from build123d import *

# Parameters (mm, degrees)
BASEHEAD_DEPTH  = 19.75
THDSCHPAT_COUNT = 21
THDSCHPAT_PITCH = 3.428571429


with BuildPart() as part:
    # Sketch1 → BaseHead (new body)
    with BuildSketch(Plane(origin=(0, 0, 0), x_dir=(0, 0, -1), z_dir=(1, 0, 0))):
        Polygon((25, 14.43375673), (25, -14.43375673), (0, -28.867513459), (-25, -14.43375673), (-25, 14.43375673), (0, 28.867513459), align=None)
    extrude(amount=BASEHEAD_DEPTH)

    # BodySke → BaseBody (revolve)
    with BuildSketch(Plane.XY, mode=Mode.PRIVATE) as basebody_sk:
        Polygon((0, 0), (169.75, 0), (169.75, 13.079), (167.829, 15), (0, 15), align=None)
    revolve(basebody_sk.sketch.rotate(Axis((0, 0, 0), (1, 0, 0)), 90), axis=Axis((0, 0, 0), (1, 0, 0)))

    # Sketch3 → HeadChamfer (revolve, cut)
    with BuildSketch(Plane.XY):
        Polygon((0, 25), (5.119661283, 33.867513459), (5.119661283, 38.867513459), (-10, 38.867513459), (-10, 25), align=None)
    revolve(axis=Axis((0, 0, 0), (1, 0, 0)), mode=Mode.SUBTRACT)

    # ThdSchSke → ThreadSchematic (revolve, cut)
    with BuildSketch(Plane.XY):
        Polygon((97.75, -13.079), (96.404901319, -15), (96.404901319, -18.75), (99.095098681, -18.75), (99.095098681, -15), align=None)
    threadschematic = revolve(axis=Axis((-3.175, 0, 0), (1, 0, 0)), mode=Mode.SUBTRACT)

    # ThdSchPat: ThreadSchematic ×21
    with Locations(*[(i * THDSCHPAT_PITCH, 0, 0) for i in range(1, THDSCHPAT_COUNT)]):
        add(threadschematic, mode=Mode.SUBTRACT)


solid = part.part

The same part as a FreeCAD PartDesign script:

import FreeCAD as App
import Part
import Sketcher
Q = App.Units.Quantity


def add_polygon(sketch, points):
    """Adds a closed chain of lines whose ends are joined by coincident constraints."""
    first, n = sketch.GeometryCount, len(points)
    for a, b in zip(points, points[1:] + points[:1]):
        sketch.addGeometry(Part.LineSegment(App.Vector(*a, 0), App.Vector(*b, 0)), False)
    for i in range(n):
        sketch.addConstraint(Sketcher.Constraint("Coincident", first + i, 2, first + (i + 1) % n, 1))

doc = App.newDocument("Part")
params = doc.addObject("Spreadsheet::Sheet", "Params")
for row, (alias, value) in enumerate([
    ("pad1_length", "19.75 mm"),
    ("sketch2_height", "15 mm"),
    ("sketch2_width", "169.75 mm"),
    ("revolution_angle", "360 deg"),
    ("sketch3_width", "10 mm"),
    ("sketch3_height", "5 mm"),
    ("groove_angle", "360 deg"),
    ("sketch4_height", "3.75 mm"),
    ("groove2_angle", "360 deg"),
    ("linearpattern_pitch", "3.428571 mm"),
], start=1):
    params.set(f"A{row}", alias)
    params.set(f"B{row}", "=" + value)
    params.setAlias(f"B{row}", alias)

body = doc.addObject("PartDesign::Body", "Body")

sketch1 = doc.addObject("Sketcher::SketchObject", "Sketch")
body.addObject(sketch1)
sketch1.AttachmentSupport = (doc.YZ_Plane, [""])
sketch1.MapMode = "FlatFace"
add_polygon(sketch1, [(-14.433757, -25), (14.433757, -25), (28.867513, 0), (14.433757, 25), (-14.433757, 25), (-28.867513, 0)])
sketch1.addConstraint([
    Sketcher.Constraint("Horizontal", 0),
    Sketcher.Constraint("Horizontal", 3),
    Sketcher.Constraint("Symmetric", 0, 2, 3, 2, -1, 1),
    Sketcher.Constraint("Symmetric", 1, 2, 4, 2, -1, 1),
    Sketcher.Constraint("PointOnObject", 1, 2, -1),
    Sketcher.Constraint("Parallel", 2, 5),
    Sketcher.Constraint("Vertical", 0, 2, 2, 2),
    Sketcher.Constraint("Angle", 1, Q("60 deg")),
    Sketcher.Constraint("DistanceY", 0, 2, -1, 1, Q("25 mm")),
    Sketcher.Constraint("DistanceX", 0, 1, 0, 2, Q("28.867513 mm")),
])
pad1 = doc.addObject("PartDesign::Pad", "Pad")
body.addObject(pad1)
pad1.Profile = sketch1
pad1.setExpression("Length", "Params.pad1_length")

sketch2 = doc.addObject("Sketcher::SketchObject", "Sketch001")
body.addObject(sketch2)
sketch2.AttachmentSupport = (doc.XY_Plane, [""])
sketch2.MapMode = "FlatFace"
add_polygon(sketch2, [(0, 0), (169.75, 0), (169.75, 13.079), (167.829, 15), (0, 15)])
sketch2.addConstraint([
    Sketcher.Constraint("Horizontal", 0),
    Sketcher.Constraint("Vertical", 1),
    Sketcher.Constraint("Horizontal", 3),
    Sketcher.Constraint("Vertical", 4),
    Sketcher.Constraint("Coincident", 4, 2, -1, 1),
    Sketcher.Constraint("DistanceY", 4, 2, 4, 1, Q("15 mm")),
    Sketcher.Constraint("Angle", 2, Q("135 deg")),
    Sketcher.Constraint("DistanceX", 0, 1, 0, 2, Q("169.75 mm")),
    Sketcher.Constraint("DistanceX", 3, 2, 3, 1, Q("167.829 mm")),
])
sketch2.setExpression("Constraints[10]", "Params.sketch2_height")
sketch2.setExpression("Constraints[12]", "Params.sketch2_width")
revolution = doc.addObject("PartDesign::Revolution", "Revolution")
body.addObject(revolution)
revolution.Profile = sketch2
revolution.ReferenceAxis = (sketch2, ["H_Axis"])
revolution.setExpression("Angle", "Params.revolution_angle")

sketch3 = doc.addObject("Sketcher::SketchObject", "Sketch002")
body.addObject(sketch3)
sketch3.AttachmentSupport = (doc.XY_Plane, [""])
sketch3.MapMode = "FlatFace"
add_polygon(sketch3, [(0, 25), (5.119661, 33.867513), (5.119661, 38.867513), (-10, 38.867513), (-10, 25)])
sketch3.addConstraint([
    Sketcher.Constraint("Vertical", 1),
    Sketcher.Constraint("Horizontal", 2),
    Sketcher.Constraint("Vertical", 3),
    Sketcher.Constraint("Horizontal", 4),
    Sketcher.Constraint("PointOnObject", 4, 2, -2),
    Sketcher.Constraint("DistanceX", 4, 1, 4, 2, Q("10 mm")),
    Sketcher.Constraint("DistanceY", 1, 1, 1, 2, Q("5 mm")),
    Sketcher.Constraint("Angle", 0, Q("60 deg")),
    Sketcher.Constraint("DistanceY", -1, 1, 3, 2, Q("25 mm")),
    Sketcher.Constraint("DistanceX", 2, 2, 2, 1, Q("15.119661 mm")),
])
sketch3.setExpression("Constraints[10]", "Params.sketch3_width")
sketch3.setExpression("Constraints[11]", "Params.sketch3_height")
groove = doc.addObject("PartDesign::Groove", "Groove")
body.addObject(groove)
groove.Profile = sketch3
groove.ReferenceAxis = (sketch3, ["H_Axis"])
groove.setExpression("Angle", "Params.groove_angle")

sketch4 = doc.addObject("Sketcher::SketchObject", "Sketch003")
body.addObject(sketch4)
sketch4.AttachmentSupport = (doc.XY_Plane, [""])
sketch4.MapMode = "FlatFace"
add_polygon(sketch4, [(97.75, -13.079), (96.404901, -15), (96.404901, -18.75), (99.095099, -18.75), (99.095099, -15)])
sketch4.addConstraint([
    Sketcher.Constraint("Vertical", 1),
    Sketcher.Constraint("Horizontal", 2),
    Sketcher.Constraint("Vertical", 3),
    Sketcher.Constraint("Horizontal", 0, 2, 3, 2),
    Sketcher.Constraint("Equal", 0, 4),
    Sketcher.Constraint("Angle", 0, Q("-125 deg")),
    Sketcher.Constraint("DistanceY", 0, 2, -1, 1, Q("15 mm")),
    Sketcher.Constraint("DistanceY", 1, 2, 1, 1, Q("3.75 mm")),
    Sketcher.Constraint("DistanceX", -1, 1, 4, 2, Q("97.75 mm")),
    Sketcher.Constraint("DistanceY", 4, 2, -1, 1, Q("13.079 mm")),
])
sketch4.setExpression("Constraints[12]", "Params.sketch4_height")
groove2 = doc.addObject("PartDesign::Groove", "Groove001")
body.addObject(groove2)
groove2.Profile = sketch4
groove2.ReferenceAxis = (sketch4, ["H_Axis"])
groove2.setExpression("Angle", "Params.groove2_angle")
doc.recompute()

linearpattern = doc.addObject("PartDesign::LinearPattern", "LinearPattern")
body.addObject(linearpattern)
linearpattern.Originals = [groove2]
linearpattern.Direction = (doc.X_Axis, [""])
linearpattern.Mode = "offset"
linearpattern.setExpression("Offset", "Params.linearpattern_pitch")
linearpattern.Occurrences = 21
body.Tip = linearpattern

doc.recompute()
